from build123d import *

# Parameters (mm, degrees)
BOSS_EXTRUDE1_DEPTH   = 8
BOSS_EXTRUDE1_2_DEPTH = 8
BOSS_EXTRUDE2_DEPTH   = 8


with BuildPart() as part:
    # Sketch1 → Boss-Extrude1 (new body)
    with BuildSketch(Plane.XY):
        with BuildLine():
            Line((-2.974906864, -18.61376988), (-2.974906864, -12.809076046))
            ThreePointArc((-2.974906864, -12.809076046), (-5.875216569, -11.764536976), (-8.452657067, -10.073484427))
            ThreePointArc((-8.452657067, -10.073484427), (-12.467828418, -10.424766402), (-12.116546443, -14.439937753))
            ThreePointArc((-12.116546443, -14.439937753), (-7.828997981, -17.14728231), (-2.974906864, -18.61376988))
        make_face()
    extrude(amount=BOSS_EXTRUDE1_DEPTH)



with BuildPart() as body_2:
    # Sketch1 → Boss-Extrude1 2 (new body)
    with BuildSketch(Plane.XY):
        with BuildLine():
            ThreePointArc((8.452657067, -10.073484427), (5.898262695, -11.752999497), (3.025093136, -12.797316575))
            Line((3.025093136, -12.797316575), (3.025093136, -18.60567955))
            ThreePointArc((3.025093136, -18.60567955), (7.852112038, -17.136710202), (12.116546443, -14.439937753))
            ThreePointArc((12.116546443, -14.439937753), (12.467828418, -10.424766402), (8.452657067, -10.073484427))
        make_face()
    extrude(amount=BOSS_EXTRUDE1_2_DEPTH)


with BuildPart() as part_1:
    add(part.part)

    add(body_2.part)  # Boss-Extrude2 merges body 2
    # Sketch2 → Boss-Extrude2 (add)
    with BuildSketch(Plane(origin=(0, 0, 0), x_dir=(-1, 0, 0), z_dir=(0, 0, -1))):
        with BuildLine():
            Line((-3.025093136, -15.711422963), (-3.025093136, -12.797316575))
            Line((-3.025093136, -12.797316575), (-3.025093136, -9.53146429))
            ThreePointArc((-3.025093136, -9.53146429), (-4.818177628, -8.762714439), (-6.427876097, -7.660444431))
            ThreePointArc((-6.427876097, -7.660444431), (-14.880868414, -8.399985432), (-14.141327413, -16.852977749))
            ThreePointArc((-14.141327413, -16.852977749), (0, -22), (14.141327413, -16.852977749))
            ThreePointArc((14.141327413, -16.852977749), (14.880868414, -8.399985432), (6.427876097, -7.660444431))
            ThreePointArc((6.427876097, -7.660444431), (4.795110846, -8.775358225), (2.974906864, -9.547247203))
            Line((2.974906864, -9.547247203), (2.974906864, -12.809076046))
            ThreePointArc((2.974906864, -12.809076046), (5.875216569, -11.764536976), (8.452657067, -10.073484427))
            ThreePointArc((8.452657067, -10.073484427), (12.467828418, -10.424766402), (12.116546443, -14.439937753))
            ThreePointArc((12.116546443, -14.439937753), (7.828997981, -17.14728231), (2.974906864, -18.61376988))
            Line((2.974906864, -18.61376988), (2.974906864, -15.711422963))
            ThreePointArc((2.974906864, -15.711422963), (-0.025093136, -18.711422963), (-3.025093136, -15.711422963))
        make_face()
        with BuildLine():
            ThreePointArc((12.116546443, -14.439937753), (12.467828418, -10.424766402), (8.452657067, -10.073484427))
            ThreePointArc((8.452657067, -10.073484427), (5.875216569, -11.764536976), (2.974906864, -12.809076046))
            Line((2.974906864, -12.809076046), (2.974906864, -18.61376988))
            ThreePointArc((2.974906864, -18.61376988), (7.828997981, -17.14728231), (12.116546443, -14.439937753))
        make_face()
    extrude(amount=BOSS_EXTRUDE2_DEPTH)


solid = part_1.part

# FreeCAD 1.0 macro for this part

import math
import FreeCAD as App
import Part
import Sketcher

V = App.Vector
Q = App.Units.Quantity

doc = App.newDocument("Part")
body = doc.addObject("PartDesign::Body", "Body")

sketch1 = doc.addObject("Sketcher::SketchObject", "Sketch")
body.addObject(sketch1)
sketch1.AttachmentSupport = (doc.XY_Plane, [""])
sketch1.MapMode = "FlatFace"
sketch1.addGeometry(Part.LineSegment(V(-3, -18.6, 0), V(-3, -12.8, 0)), False)
sketch1.addGeometry(Part.ArcOfCircle(Part.Circle(V(0, 0, 0), V(0, 0, 1), 13.2), math.radians(-130), math.radians(-103)), False)
sketch1.addGeometry(Part.ArcOfCircle(Part.Circle(V(-10.3, -12.3, 0), V(0, 0, 1), 2.9), math.radians(50), math.radians(230)), False)
sketch1.addGeometry(Part.ArcOfCircle(Part.Circle(V(0, 0, 0), V(0, 0, 1), 18.9), math.radians(-130), math.radians(-99)), False)
sketch1.addConstraint(Sketcher.Constraint("Coincident", 0, 2, 1, 2))
sketch1.addConstraint(Sketcher.Constraint("Tangent", 1, 1, 2, 1))
sketch1.addConstraint(Sketcher.Constraint("Tangent", 2, 2, 3, 1))
sketch1.addConstraint(Sketcher.Constraint("Coincident", 3, 2, 0, 1))
sketch1.addConstraint(Sketcher.Constraint("Vertical", 0))
sketch1.addConstraint(Sketcher.Constraint("Coincident", 1, 3, -1, 1))
sketch1.addConstraint(Sketcher.Constraint("Coincident", 3, 3, -1, 1))
sketch1.addConstraint(Sketcher.Constraint("Radius", 1, Q("13.15 mm")))
sketch1.addConstraint(Sketcher.Constraint("Radius", 2, Q("2.85 mm")))
sketch1.addConstraint(Sketcher.Constraint("DistanceX", 2, 3, -1, 1, Q("10.284602 mm")))
sketch1.addConstraint(Sketcher.Constraint("DistanceY", 0, 1, 0, 2, Q("5.804694 mm")))
pad1 = doc.addObject("PartDesign::Pad", "Pad")
body.addObject(pad1)
pad1.Profile = sketch1
pad1.Length = 8
body2 = doc.addObject("PartDesign::Body", "Body001")

sketch2 = doc.addObject("Sketcher::SketchObject", "Sketch001")
body2.addObject(sketch2)
sketch2.AttachmentSupport = (doc.getObject("XY_Plane001"), [""])
sketch2.MapMode = "FlatFace"
sketch2.addGeometry(Part.ArcOfCircle(Part.Circle(V(0, 0, 0), V(0, 0, 1), 13.2), math.radians(-77), math.radians(-50)), False)
sketch2.addGeometry(Part.LineSegment(V(3, -12.8, 0), V(3, -18.6, 0)), False)
sketch2.addGeometry(Part.ArcOfCircle(Part.Circle(V(0, 0, 0), V(0, 0, 1), 18.9), math.radians(-81), math.radians(-50)), False)
sketch2.addGeometry(Part.ArcOfCircle(Part.Circle(V(10.3, -12.3, 0), V(0, 0, 1), 2.9), math.radians(-50), math.radians(130)), False)
sketch2.addConstraint(Sketcher.Constraint("Coincident", 0, 1, 1, 1))
sketch2.addConstraint(Sketcher.Constraint("Coincident", 1, 2, 2, 1))
sketch2.addConstraint(Sketcher.Constraint("Tangent", 2, 2, 3, 1))
sketch2.addConstraint(Sketcher.Constraint("Tangent", 3, 2, 0, 2))
sketch2.addConstraint(Sketcher.Constraint("Vertical", 1))
sketch2.addConstraint(Sketcher.Constraint("Coincident", 0, 3, -1, 1))
sketch2.addConstraint(Sketcher.Constraint("Coincident", 2, 3, -1, 1))
sketch2.addConstraint(Sketcher.Constraint("Radius", 0, Q("13.15 mm")))
sketch2.addConstraint(Sketcher.Constraint("Radius", 2, Q("18.85 mm")))
sketch2.addConstraint(Sketcher.Constraint("DistanceX", -1, 1, 3, 3, Q("10.284602 mm")))
sketch2.addConstraint(Sketcher.Constraint("DistanceY", 1, 2, 1, 1, Q("5.808363 mm")))
pad2 = doc.addObject("PartDesign::Pad", "Pad001")
body2.addObject(pad2)
pad2.Profile = sketch2
pad2.Length = 8
body.AllowCompound = True
doc.recompute()

boolean = doc.addObject("PartDesign::Boolean", "Boolean")
body.addObject(boolean)
boolean.Type = "Fuse"
boolean.addObjects([body2])

sketch3 = doc.addObject("Sketcher::SketchObject", "Sketch002")
body.addObject(sketch3)
sketch3.AttachmentSupport = (doc.XY_Plane, [""])
sketch3.MapMode = "FlatFace"
sketch3.addGeometry(Part.LineSegment(V(3, -15.7, 0), V(3, -9.5, 0)), False)
sketch3.addGeometry(Part.ArcOfCircle(Part.Circle(V(0, 0, 0), V(0, 0, 1), 10), math.radians(-72), math.radians(-50)), False)
sketch3.addGeometry(Part.ArcOfCircle(Part.Circle(V(10.3, -12.3, 0), V(0, 0, 1), 6), math.radians(-50), math.radians(130)), False)
sketch3.addGeometry(Part.ArcOfCircle(Part.Circle(V(0, 0, 0), V(0, 0, 1), 22), math.radians(-130), math.radians(-50)), False)
sketch3.addGeometry(Part.ArcOfCircle(Part.Circle(V(-10.3, -12.3, 0), V(0, 0, 1), 6), math.radians(50), math.radians(230)), False)
sketch3.addGeometry(Part.ArcOfCircle(Part.Circle(V(0, 0, 0), V(0, 0, 1), 10), math.radians(-130), math.radians(-107)), False)
sketch3.addGeometry(Part.LineSegment(V(-3, -9.5, 0), V(-3, -15.7, 0)), False)
sketch3.addGeometry(Part.ArcOfCircle(Part.Circle(V(0, -15.7, 0), V(0, 0, 1), 3), math.radians(180), math.radians(360)), False)
sketch3.addConstraint(Sketcher.Constraint("Coincident", 0, 2, 1, 1))
sketch3.addConstraint(Sketcher.Constraint("Tangent", 1, 2, 2, 2))
sketch3.addConstraint(Sketcher.Constraint("Tangent", 2, 1, 3, 2))
sketch3.addConstraint(Sketcher.Constraint("Tangent", 3, 1, 4, 2))
sketch3.addConstraint(Sketcher.Constraint("Tangent", 4, 1, 5, 1))
sketch3.addConstraint(Sketcher.Constraint("Coincident", 5, 2, 6, 1))
sketch3.addConstraint(Sketcher.Constraint("Tangent", 6, 2, 7, 1))
sketch3.addConstraint(Sketcher.Constraint("Tangent", 7, 2, 0, 1))
sketch3.addConstraint(Sketcher.Constraint("Vertical", 0))
sketch3.addConstraint(Sketcher.Constraint("Vertical", 6))
sketch3.addConstraint(Sketcher.Constraint("Coincident", 1, 3, -1, 1))
sketch3.addConstraint(Sketcher.Constraint("Coincident", 3, 3, -1, 1))
sketch3.addConstraint(Sketcher.Constraint("Coincident", 5, 3, -1, 1))
sketch3.addConstraint(Sketcher.Constraint("Equal", 2, 4))
sketch3.addConstraint(Sketcher.Constraint("Horizontal", 2, 3, 4, 3))
sketch3.addConstraint(Sketcher.Constraint("Radius", 1, Q("10 mm")))
sketch3.addConstraint(Sketcher.Constraint("Radius", 2, Q("6 mm")))
sketch3.addConstraint(Sketcher.Constraint("Radius", 7, Q("3 mm")))
sketch3.addConstraint(Sketcher.Constraint("DistanceY", 0, 1, 0, 2, Q("6.179959 mm")))
sketch3.addConstraint(Sketcher.Constraint("DistanceX", -1, 1, 2, 3, Q("10.284602 mm")))
sketch3.addConstraint(Sketcher.Constraint("DistanceY", 6, 2, 6, 1, Q("6.164176 mm")))
pad3 = doc.addObject("PartDesign::Pad", "Pad002")
body.addObject(pad3)
pad3.Profile = sketch3
pad3.Length = 8
pad3.Reversed = True

doc.recompute()
